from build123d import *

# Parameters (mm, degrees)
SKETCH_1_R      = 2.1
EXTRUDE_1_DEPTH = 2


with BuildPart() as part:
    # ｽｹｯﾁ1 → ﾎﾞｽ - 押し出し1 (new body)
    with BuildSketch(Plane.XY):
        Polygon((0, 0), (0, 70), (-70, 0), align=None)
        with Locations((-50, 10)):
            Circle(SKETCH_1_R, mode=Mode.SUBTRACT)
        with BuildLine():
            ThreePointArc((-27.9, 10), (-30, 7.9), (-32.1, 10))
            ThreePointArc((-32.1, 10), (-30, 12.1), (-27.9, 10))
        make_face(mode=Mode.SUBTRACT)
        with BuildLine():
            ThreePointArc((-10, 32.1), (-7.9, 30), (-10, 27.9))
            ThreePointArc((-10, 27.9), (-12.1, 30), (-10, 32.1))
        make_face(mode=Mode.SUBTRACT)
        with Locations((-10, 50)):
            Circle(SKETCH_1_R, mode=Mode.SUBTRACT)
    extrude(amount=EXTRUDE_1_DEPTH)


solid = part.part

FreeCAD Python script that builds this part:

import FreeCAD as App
import Part
import Sketcher
from FreeCAD import Vector

doc = App.newDocument("Part")
body = doc.addObject("PartDesign::Body", "Body")

# Sketch on XY plane
sketch1 = doc.addObject("Sketcher::SketchObject", "Sketch")
body.addObject(sketch1)
sketch1.AttachmentSupport = (doc.XY_Plane, [""])
sketch1.MapMode = "FlatFace"
sketch1.addGeometry(Part.LineSegment(Vector(0, 0, 0), Vector(0, 70, 0)), False)
sketch1.addGeometry(Part.LineSegment(Vector(0, 70, 0), Vector(-70, 0, 0)), False)
sketch1.addGeometry(Part.LineSegment(Vector(-70, 0, 0), Vector(0, 0, 0)), False)
sketch1.addGeometry(Part.Circle(Vector(-50, 10, 0), Vector(0, 0, 1), 2.1), False)
sketch1.addGeometry(Part.Circle(Vector(-30, 10, 0), Vector(0, 0, 1), 2.1), False)
sketch1.addGeometry(Part.Circle(Vector(-10, 30, 0), Vector(0, 0, 1), 2.1), False)
sketch1.addGeometry(Part.Circle(Vector(-10, 50, 0), Vector(0, 0, 1), 2.1), False)
sketch1.addConstraint(Sketcher.Constraint("Coincident", 0, 2, 1, 1))
sketch1.addConstraint(Sketcher.Constraint("Coincident", 1, 2, 2, 1))
sketch1.addConstraint(Sketcher.Constraint("Coincident", 2, 2, 0, 1))
sketch1.addConstraint(Sketcher.Constraint("Vertical", 0))
sketch1.addConstraint(Sketcher.Constraint("Horizontal", 2))
sketch1.addConstraint(Sketcher.Constraint("Coincident", 2, 2, -1, 1))
sketch1.addConstraint(Sketcher.Constraint("Equal", 3, 4))
sketch1.addConstraint(Sketcher.Constraint("Equal", 4, 5))
sketch1.addConstraint(Sketcher.Constraint("Equal", 5, 6))
sketch1.addConstraint(Sketcher.Constraint("Horizontal", 3, 3, 4, 3))
sketch1.addConstraint(Sketcher.Constraint("Vertical", 5, 3, 6, 3))
sketch1.addConstraint(Sketcher.Constraint("Equal", 2, 0))
sketch1.addConstraint(Sketcher.Constraint("Diameter", 3, 4.2))
sketch1.addConstraint(Sketcher.Constraint("DistanceX", 2, 1, 2, 2, 70.0))
sketch1.addConstraint(Sketcher.Constraint("DistanceX", 3, 3, -1, 1, 50.0))
sketch1.addConstraint(Sketcher.Constraint("DistanceY", -1, 1, 3, 3, 10.0))
sketch1.addConstraint(Sketcher.Constraint("DistanceX", 4, 3, -1, 1, 30.0))
sketch1.addConstraint(Sketcher.Constraint("DistanceX", 5, 3, -1, 1, 10.0))
sketch1.addConstraint(Sketcher.Constraint("DistanceY", -1, 1, 5, 3, 30.0))
sketch1.addConstraint(Sketcher.Constraint("DistanceY", -1, 1, 6, 3, 50.0))
pad1 = doc.addObject("PartDesign::Pad", "Pad")
body.addObject(pad1)
pad1.Profile = sketch1
pad1.Length = 2

doc.recompute()
